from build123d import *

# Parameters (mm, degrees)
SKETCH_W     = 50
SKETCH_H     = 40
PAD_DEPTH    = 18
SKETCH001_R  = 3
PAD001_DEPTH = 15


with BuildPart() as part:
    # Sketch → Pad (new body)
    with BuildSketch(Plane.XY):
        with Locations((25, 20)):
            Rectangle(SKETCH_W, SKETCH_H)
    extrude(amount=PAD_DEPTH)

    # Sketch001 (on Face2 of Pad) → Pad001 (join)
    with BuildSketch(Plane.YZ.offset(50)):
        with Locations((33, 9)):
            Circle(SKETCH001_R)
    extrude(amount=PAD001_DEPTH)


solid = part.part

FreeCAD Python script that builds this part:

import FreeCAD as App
import Part
import Sketcher
from FreeCAD import Vector

doc = App.newDocument("Part")
body = doc.addObject("PartDesign::Body", "Body")

sketch1 = body.newObject("Sketcher::SketchObject", "Sketch")
sketch1.AttachmentSupport = (doc.getObject("XY_Plane"), [""])
sketch1.MapMode = "FlatFace"
sketch1.addGeometry([
    Part.LineSegment(Vector(0, 40, 0), Vector(0, 0, 0)),
    Part.LineSegment(Vector(0, 0, 0), Vector(50, 0, 0)),
    Part.LineSegment(Vector(50, 0, 0), Vector(50, 40, 0)),
    Part.LineSegment(Vector(50, 40, 0), Vector(0, 40, 0)),
], False)
sketch1.addConstraint([
    Sketcher.Constraint("Coincident", 0, 2, 1, 1),
    Sketcher.Constraint("Coincident", 1, 2, 2, 1),
    Sketcher.Constraint("Coincident", 2, 2, 3, 1),
    Sketcher.Constraint("Coincident", 3, 2, 0, 1),
    Sketcher.Constraint("Vertical", 0),
    Sketcher.Constraint("Horizontal", 1),
    Sketcher.Constraint("Vertical", 2),
    Sketcher.Constraint("Horizontal", 3),
    Sketcher.Constraint("Coincident", 0, 2, -1, 1),
    Sketcher.Constraint("DistanceX", 1, 1, 1, 2, 50.0),
    Sketcher.Constraint("DistanceY", 0, 2, 0, 1, 40.0),
])
pad1 = body.newObject("PartDesign::Pad", "Pad")
pad1.Profile = sketch1
pad1.Length = 18

sketch2 = body.newObject("Sketcher::SketchObject", "Sketch001")
sketch2.AttachmentSupport = (doc.getObject("YZ_Plane"), [""])
sketch2.MapMode = "FlatFace"
sketch2.AttachmentOffset = App.Placement(Vector(0, 0, 50), App.Rotation())
sketch2.addGeometry(Part.Circle(Vector(33, 9, 0), Vector(0, 0, 1), 3), False)
sketch2.addConstraint([
    Sketcher.Constraint("Diameter", 0, 6.0),
    Sketcher.Constraint("DistanceX", -1, 1, 0, 3, 33.0),
    Sketcher.Constraint("DistanceY", -1, 1, 0, 3, 9.0),
])
pad2 = body.newObject("PartDesign::Pad", "Pad001")
pad2.Profile = sketch2
pad2.Length = 15

doc.recompute()
